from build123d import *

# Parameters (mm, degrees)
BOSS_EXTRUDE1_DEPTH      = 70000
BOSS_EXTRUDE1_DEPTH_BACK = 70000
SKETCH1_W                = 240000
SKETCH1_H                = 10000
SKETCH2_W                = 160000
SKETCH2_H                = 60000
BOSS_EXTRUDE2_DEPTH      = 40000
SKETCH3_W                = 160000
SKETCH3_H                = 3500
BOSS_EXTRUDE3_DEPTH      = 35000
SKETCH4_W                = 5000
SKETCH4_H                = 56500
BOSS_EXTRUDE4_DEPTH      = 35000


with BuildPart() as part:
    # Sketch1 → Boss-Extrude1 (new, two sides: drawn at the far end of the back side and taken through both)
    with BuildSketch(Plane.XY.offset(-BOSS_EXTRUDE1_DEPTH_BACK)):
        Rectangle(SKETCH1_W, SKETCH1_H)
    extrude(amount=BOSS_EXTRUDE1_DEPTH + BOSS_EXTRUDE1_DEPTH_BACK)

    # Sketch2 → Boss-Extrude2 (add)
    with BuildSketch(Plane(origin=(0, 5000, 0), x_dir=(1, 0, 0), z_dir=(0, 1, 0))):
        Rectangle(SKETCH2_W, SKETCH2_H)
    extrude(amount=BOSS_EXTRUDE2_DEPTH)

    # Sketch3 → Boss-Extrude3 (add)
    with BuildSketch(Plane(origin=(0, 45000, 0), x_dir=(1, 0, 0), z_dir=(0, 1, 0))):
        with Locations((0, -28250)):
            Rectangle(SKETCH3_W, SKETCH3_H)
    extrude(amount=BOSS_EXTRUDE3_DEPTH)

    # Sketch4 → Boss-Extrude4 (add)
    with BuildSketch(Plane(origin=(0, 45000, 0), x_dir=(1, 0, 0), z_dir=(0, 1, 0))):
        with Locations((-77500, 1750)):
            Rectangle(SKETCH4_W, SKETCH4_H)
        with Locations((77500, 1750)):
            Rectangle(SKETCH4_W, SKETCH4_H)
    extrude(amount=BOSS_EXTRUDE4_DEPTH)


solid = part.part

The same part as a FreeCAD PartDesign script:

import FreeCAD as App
import Part
import Sketcher

V = App.Vector

doc = App.newDocument("Part")
body = doc.addObject("PartDesign::Body", "Body")

sketch1 = body.newObject("Sketcher::SketchObject", "Sketch")
sketch1.AttachmentSupport = (doc.getObject("XY_Plane"), [""])
sketch1.MapMode = "FlatFace"
sketch1.addGeometry(Part.LineSegment(V(-120000, 5000, 0), V(-120000, -5000, 0)), False)
sketch1.addGeometry(Part.LineSegment(V(-120000, -5000, 0), V(120000, -5000, 0)), False)
sketch1.addGeometry(Part.LineSegment(V(120000, -5000, 0), V(120000, 5000, 0)), False)
sketch1.addGeometry(Part.LineSegment(V(120000, 5000, 0), V(-120000, 5000, 0)), False)
sketch1.addConstraint(Sketcher.Constraint("Coincident", 0, 2, 1, 1))
sketch1.addConstraint(Sketcher.Constraint("Coincident", 1, 2, 2, 1))
sketch1.addConstraint(Sketcher.Constraint("Coincident", 2, 2, 3, 1))
sketch1.addConstraint(Sketcher.Constraint("Coincident", 3, 2, 0, 1))
sketch1.addConstraint(Sketcher.Constraint("Vertical", 0))
sketch1.addConstraint(Sketcher.Constraint("Horizontal", 1))
sketch1.addConstraint(Sketcher.Constraint("Vertical", 2))
sketch1.addConstraint(Sketcher.Constraint("Horizontal", 3))
sketch1.addConstraint(Sketcher.Constraint("Symmetric", 0, 2, 2, 2, -1, 1))
sketch1.addConstraint(Sketcher.Constraint("DistanceX", 1, 1, 1, 2, 240000.0))
sketch1.addConstraint(Sketcher.Constraint("DistanceY", 0, 2, 0, 1, 10000.0))
pad1 = body.newObject("PartDesign::Pad", "Pad")
pad1.Profile = sketch1
pad1.Type = "TwoLengths"
pad1.Length = 70000
pad1.Length2 = 70000

sketch2 = body.newObject("Sketcher::SketchObject", "Sketch001")
sketch2.AttachmentSupport = (doc.getObject("XZ_Plane"), [""])
sketch2.MapMode = "FlatFace"
sketch2.AttachmentOffset = App.Placement(V(0, 0, -5000), App.Rotation())
sketch2.addGeometry(Part.LineSegment(V(-80000, -30000, 0), V(-80000, 30000, 0)), False)
sketch2.addGeometry(Part.LineSegment(V(-80000, 30000, 0), V(80000, 30000, 0)), False)
sketch2.addGeometry(Part.LineSegment(V(80000, 30000, 0), V(80000, -30000, 0)), False)
sketch2.addGeometry(Part.LineSegment(V(80000, -30000, 0), V(-80000, -30000, 0)), False)
sketch2.addConstraint(Sketcher.Constraint("Coincident", 0, 2, 1, 1))
sketch2.addConstraint(Sketcher.Constraint("Coincident", 1, 2, 2, 1))
sketch2.addConstraint(Sketcher.Constraint("Coincident", 2, 2, 3, 1))
sketch2.addConstraint(Sketcher.Constraint("Coincident", 3, 2, 0, 1))
sketch2.addConstraint(Sketcher.Constraint("Vertical", 0))
sketch2.addConstraint(Sketcher.Constraint("Horizontal", 1))
sketch2.addConstraint(Sketcher.Constraint("Vertical", 2))
sketch2.addConstraint(Sketcher.Constraint("Horizontal", 3))
sketch2.addConstraint(Sketcher.Constraint("Symmetric", 0, 2, 2, 2, -1, 1))
sketch2.addConstraint(Sketcher.Constraint("DistanceX", 1, 1, 1, 2, 160000.0))
sketch2.addConstraint(Sketcher.Constraint("DistanceY", 0, 1, 0, 2, 60000.0))
pad2 = body.newObject("PartDesign::Pad", "Pad001")
pad2.Profile = sketch2
pad2.Length = 40000
pad2.Reversed = True

sketch3 = body.newObject("Sketcher::SketchObject", "Sketch002")
sketch3.AttachmentSupport = (doc.getObject("XZ_Plane"), [""])
sketch3.MapMode = "FlatFace"
sketch3.AttachmentOffset = App.Placement(V(0, 0, -45000), App.Rotation())
sketch3.addGeometry(Part.LineSegment(V(-80000, 26500, 0), V(-80000, 30000, 0)), False)
sketch3.addGeometry(Part.LineSegment(V(-80000, 30000, 0), V(80000, 30000, 0)), False)
sketch3.addGeometry(Part.LineSegment(V(80000, 30000, 0), V(80000, 26500, 0)), False)
sketch3.addGeometry(Part.LineSegment(V(80000, 26500, 0), V(-80000, 26500, 0)), False)
sketch3.addConstraint(Sketcher.Constraint("Coincident", 0, 2, 1, 1))
sketch3.addConstraint(Sketcher.Constraint("Coincident", 1, 2, 2, 1))
sketch3.addConstraint(Sketcher.Constraint("Coincident", 2, 2, 3, 1))
sketch3.addConstraint(Sketcher.Constraint("Coincident", 3, 2, 0, 1))
sketch3.addConstraint(Sketcher.Constraint("Vertical", 0))
sketch3.addConstraint(Sketcher.Constraint("Horizontal", 1))
sketch3.addConstraint(Sketcher.Constraint("Vertical", 2))
sketch3.addConstraint(Sketcher.Constraint("Horizontal", 3))
sketch3.addConstraint(Sketcher.Constraint("DistanceX", 1, 1, 1, 2, 160000.0))
sketch3.addConstraint(Sketcher.Constraint("DistanceY", 0, 1, 0, 2, 3500.0))
sketch3.addConstraint(Sketcher.Constraint("DistanceX", 0, 2, -1, 1, 80000.0))
sketch3.addConstraint(Sketcher.Constraint("DistanceY", -1, 1, 0, 2, 30000.0))
pad3 = body.newObject("PartDesign::Pad", "Pad002")
pad3.Profile = sketch3
pad3.Length = 35000
pad3.Reversed = True

sketch4 = body.newObject("Sketcher::SketchObject", "Sketch003")
sketch4.AttachmentSupport = (doc.getObject("XZ_Plane"), [""])
sketch4.MapMode = "FlatFace"
sketch4.AttachmentOffset = App.Placement(V(0, 0, -45000), App.Rotation())
sketch4.addGeometry(Part.LineSegment(V(-80000, -30000, 0), V(-80000, 26500, 0)), False)
sketch4.addGeometry(Part.LineSegment(V(-80000, 26500, 0), V(-75000, 26500, 0)), False)
sketch4.addGeometry(Part.LineSegment(V(-75000, 26500, 0), V(-75000, -30000, 0)), False)
sketch4.addGeometry(Part.LineSegment(V(-75000, -30000, 0), V(-80000, -30000, 0)), False)
sketch4.addGeometry(Part.LineSegment(V(75000, -30000, 0), V(75000, 26500, 0)), False)
sketch4.addGeometry(Part.LineSegment(V(75000, 26500, 0), V(80000, 26500, 0)), False)
sketch4.addGeometry(Part.LineSegment(V(80000, 26500, 0), V(80000, -30000, 0)), False)
sketch4.addGeometry(Part.LineSegment(V(80000, -30000, 0), V(75000, -30000, 0)), False)
sketch4.addConstraint(Sketcher.Constraint("Coincident", 0, 2, 1, 1))
sketch4.addConstraint(Sketcher.Constraint("Coincident", 1, 2, 2, 1))
sketch4.addConstraint(Sketcher.Constraint("Coincident", 2, 2, 3, 1))
sketch4.addConstraint(Sketcher.Constraint("Coincident", 3, 2, 0, 1))
sketch4.addConstraint(Sketcher.Constraint("Coincident", 4, 2, 5, 1))
sketch4.addConstraint(Sketcher.Constraint("Coincident", 5, 2, 6, 1))
sketch4.addConstraint(Sketcher.Constraint("Coincident", 6, 2, 7, 1))
sketch4.addConstraint(Sketcher.Constraint("Coincident", 7, 2, 4, 1))
sketch4.addConstraint(Sketcher.Constraint("Vertical", 0))
sketch4.addConstraint(Sketcher.Constraint("Horizontal", 1))
sketch4.addConstraint(Sketcher.Constraint("Vertical", 2))
sketch4.addConstraint(Sketcher.Constraint("Horizontal", 3))
sketch4.addConstraint(Sketcher.Constraint("Vertical", 4))
sketch4.addConstraint(Sketcher.Constraint("Horizontal", 5))
sketch4.addConstraint(Sketcher.Constraint("Vertical", 6))
sketch4.addConstraint(Sketcher.Constraint("Horizontal", 7))
sketch4.addConstraint(Sketcher.Constraint("Symmetric", 1, 2, 4, 2, -2))
sketch4.addConstraint(Sketcher.Constraint("Symmetric", 3, 2, 6, 2, -2))
sketch4.addConstraint(Sketcher.Constraint("DistanceX", 1, 1, 1, 2, 5000.0))
sketch4.addConstraint(Sketcher.Constraint("DistanceY", 0, 1, 0, 2, 56500.0))
sketch4.addConstraint(Sketcher.Constraint("DistanceX", 0, 2, -1, 1, 80000.0))
sketch4.addConstraint(Sketcher.Constraint("DistanceY", -1, 1, 0, 2, 26500.0))
pad4 = body.newObject("PartDesign::Pad", "Pad003")
pad4.Profile = sketch4
pad4.Length = 35000
pad4.Reversed = True

doc.recompute()
